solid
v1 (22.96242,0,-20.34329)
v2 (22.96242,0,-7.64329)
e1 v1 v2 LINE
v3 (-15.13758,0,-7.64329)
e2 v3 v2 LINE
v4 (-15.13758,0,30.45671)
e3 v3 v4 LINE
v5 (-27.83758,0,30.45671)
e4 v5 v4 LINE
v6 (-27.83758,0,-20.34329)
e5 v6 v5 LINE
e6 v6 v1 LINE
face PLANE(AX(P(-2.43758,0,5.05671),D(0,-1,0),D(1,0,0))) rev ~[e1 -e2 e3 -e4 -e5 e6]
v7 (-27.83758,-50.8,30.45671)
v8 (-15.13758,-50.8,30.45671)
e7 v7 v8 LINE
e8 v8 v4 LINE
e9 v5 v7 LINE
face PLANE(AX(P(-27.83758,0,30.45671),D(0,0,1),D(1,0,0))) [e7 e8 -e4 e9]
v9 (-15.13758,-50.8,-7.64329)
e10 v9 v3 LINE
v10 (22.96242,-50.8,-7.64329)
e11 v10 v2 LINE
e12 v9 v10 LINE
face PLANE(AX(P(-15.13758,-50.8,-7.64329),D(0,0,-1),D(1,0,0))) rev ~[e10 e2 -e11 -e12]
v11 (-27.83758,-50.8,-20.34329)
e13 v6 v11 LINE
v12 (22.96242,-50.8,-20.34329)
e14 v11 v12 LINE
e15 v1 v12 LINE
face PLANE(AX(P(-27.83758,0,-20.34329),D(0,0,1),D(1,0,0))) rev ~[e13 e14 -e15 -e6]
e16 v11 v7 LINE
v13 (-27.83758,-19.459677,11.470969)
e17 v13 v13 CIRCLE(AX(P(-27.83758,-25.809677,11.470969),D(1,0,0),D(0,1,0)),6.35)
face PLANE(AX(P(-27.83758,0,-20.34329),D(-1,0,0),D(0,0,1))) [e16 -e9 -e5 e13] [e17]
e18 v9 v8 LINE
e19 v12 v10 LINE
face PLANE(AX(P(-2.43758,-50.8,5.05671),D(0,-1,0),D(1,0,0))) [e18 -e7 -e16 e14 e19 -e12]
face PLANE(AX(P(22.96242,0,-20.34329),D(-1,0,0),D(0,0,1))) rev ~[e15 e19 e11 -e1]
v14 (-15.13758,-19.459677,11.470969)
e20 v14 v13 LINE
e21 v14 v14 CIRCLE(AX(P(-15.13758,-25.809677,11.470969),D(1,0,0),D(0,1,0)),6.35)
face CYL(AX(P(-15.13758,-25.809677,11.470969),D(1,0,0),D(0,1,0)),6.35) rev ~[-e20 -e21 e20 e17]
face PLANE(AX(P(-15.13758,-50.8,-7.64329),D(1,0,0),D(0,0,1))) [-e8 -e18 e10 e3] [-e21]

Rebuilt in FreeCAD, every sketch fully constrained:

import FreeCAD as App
import Part
import Sketcher
from FreeCAD import Vector
Q = App.Units.Quantity

doc = App.newDocument("Part")
body = doc.addObject("PartDesign::Body", "Body")

# Sketch on XZ plane
sketch1 = doc.addObject("Sketcher::SketchObject", "Sketch")
body.addObject(sketch1)
sketch1.AttachmentSupport = (doc.XZ_Plane, [""])
sketch1.MapMode = "FlatFace"
sketch1.addGeometry([
    Part.LineSegment(Vector(-28, 30, 0), Vector(-28, -20, 0)),
    Part.LineSegment(Vector(-28, -20, 0), Vector(23, -20, 0)),
    Part.LineSegment(Vector(23, -20, 0), Vector(23, 30, 0)),
    Part.LineSegment(Vector(23, 30, 0), Vector(-28, 30, 0)),
], False)
sketch1.addConstraint([
    Sketcher.Constraint("Coincident", 0, 2, 1, 1),
    Sketcher.Constraint("Coincident", 1, 2, 2, 1),
    Sketcher.Constraint("Coincident", 2, 2, 3, 1),
    Sketcher.Constraint("Coincident", 3, 2, 0, 1),
    Sketcher.Constraint("Vertical", 0),
    Sketcher.Constraint("Horizontal", 1),
    Sketcher.Constraint("Vertical", 2),
    Sketcher.Constraint("Horizontal", 3),
    Sketcher.Constraint("Equal", 3, 0),
    Sketcher.Constraint("DistanceX", 1, 1, 1, 2, Q("2 in")),
    Sketcher.Constraint("DistanceX", 0, 2, -1, 1, 27.83758),
    Sketcher.Constraint("DistanceY", 0, 2, -1, 1, 20.34329),
])
pad1 = doc.addObject("PartDesign::Pad", "Pad")
body.addObject(pad1)
pad1.Profile = sketch1
pad1.Length = Q("2 in")

# Sketch on XZ plane
sketch2 = doc.addObject("Sketcher::SketchObject", "Sketch001")
body.addObject(sketch2)
sketch2.AttachmentSupport = (doc.XZ_Plane, [""])
sketch2.MapMode = "FlatFace"
sketch2.AttachmentOffset = App.Placement(Vector(0, 0, 2 * 25.4), App.Rotation())
sketch2.addGeometry([
    Part.LineSegment(Vector(-15, 30, 0), Vector(-15, -8, 0)),
    Part.LineSegment(Vector(-15, -8, 0), Vector(23, -8, 0)),
    Part.LineSegment(Vector(23, -8, 0), Vector(23, 30, 0)),
    Part.LineSegment(Vector(23, 30, 0), Vector(-15, 30, 0)),
], False)
sketch2.addConstraint([
    Sketcher.Constraint("Coincident", 0, 2, 1, 1),
    Sketcher.Constraint("Coincident", 1, 2, 2, 1),
    Sketcher.Constraint("Coincident", 2, 2, 3, 1),
    Sketcher.Constraint("Coincident", 3, 2, 0, 1),
    Sketcher.Constraint("Vertical", 0),
    Sketcher.Constraint("Horizontal", 1),
    Sketcher.Constraint("Vertical", 2),
    Sketcher.Constraint("Horizontal", 3),
    Sketcher.Constraint("Equal", 3, 0),
    Sketcher.Constraint("DistanceX", 1, 1, 1, 2, Q("1.5 in")),
    Sketcher.Constraint("DistanceX", 0, 2, -1, 1, 15.13758),
    Sketcher.Constraint("DistanceY", 0, 2, -1, 1, 7.64329),
])
pocket1 = doc.addObject("PartDesign::Pocket", "Pocket")
body.addObject(pocket1)
pocket1.Profile = sketch2
pocket1.Length = Q("2.41 in")

# Sketch on YZ plane
sketch3 = doc.addObject("Sketcher::SketchObject", "Sketch002")
body.addObject(sketch3)
sketch3.AttachmentSupport = (doc.YZ_Plane, [""])
sketch3.MapMode = "FlatFace"
sketch3.AttachmentOffset = App.Placement(Vector(0, 0, -15.13758), App.Rotation())
sketch3.addGeometry(Part.Circle(Vector(-26, 11, 0), Vector(0, 0, 1), 6), False)
sketch3.addConstraint([
    Sketcher.Constraint("Diameter", 0, Q("0.5 in")),
    Sketcher.Constraint("DistanceY", -1, 1, 0, 3, 11.470969),
    Sketcher.Constraint("DistanceX", 0, 3, -1, 1, 25.809677),
])
pocket2 = doc.addObject("PartDesign::Pocket", "Pocket001")
body.addObject(pocket2)
pocket2.Profile = sketch3
pocket2.Length = Q("1.41 in")

doc.recompute()
